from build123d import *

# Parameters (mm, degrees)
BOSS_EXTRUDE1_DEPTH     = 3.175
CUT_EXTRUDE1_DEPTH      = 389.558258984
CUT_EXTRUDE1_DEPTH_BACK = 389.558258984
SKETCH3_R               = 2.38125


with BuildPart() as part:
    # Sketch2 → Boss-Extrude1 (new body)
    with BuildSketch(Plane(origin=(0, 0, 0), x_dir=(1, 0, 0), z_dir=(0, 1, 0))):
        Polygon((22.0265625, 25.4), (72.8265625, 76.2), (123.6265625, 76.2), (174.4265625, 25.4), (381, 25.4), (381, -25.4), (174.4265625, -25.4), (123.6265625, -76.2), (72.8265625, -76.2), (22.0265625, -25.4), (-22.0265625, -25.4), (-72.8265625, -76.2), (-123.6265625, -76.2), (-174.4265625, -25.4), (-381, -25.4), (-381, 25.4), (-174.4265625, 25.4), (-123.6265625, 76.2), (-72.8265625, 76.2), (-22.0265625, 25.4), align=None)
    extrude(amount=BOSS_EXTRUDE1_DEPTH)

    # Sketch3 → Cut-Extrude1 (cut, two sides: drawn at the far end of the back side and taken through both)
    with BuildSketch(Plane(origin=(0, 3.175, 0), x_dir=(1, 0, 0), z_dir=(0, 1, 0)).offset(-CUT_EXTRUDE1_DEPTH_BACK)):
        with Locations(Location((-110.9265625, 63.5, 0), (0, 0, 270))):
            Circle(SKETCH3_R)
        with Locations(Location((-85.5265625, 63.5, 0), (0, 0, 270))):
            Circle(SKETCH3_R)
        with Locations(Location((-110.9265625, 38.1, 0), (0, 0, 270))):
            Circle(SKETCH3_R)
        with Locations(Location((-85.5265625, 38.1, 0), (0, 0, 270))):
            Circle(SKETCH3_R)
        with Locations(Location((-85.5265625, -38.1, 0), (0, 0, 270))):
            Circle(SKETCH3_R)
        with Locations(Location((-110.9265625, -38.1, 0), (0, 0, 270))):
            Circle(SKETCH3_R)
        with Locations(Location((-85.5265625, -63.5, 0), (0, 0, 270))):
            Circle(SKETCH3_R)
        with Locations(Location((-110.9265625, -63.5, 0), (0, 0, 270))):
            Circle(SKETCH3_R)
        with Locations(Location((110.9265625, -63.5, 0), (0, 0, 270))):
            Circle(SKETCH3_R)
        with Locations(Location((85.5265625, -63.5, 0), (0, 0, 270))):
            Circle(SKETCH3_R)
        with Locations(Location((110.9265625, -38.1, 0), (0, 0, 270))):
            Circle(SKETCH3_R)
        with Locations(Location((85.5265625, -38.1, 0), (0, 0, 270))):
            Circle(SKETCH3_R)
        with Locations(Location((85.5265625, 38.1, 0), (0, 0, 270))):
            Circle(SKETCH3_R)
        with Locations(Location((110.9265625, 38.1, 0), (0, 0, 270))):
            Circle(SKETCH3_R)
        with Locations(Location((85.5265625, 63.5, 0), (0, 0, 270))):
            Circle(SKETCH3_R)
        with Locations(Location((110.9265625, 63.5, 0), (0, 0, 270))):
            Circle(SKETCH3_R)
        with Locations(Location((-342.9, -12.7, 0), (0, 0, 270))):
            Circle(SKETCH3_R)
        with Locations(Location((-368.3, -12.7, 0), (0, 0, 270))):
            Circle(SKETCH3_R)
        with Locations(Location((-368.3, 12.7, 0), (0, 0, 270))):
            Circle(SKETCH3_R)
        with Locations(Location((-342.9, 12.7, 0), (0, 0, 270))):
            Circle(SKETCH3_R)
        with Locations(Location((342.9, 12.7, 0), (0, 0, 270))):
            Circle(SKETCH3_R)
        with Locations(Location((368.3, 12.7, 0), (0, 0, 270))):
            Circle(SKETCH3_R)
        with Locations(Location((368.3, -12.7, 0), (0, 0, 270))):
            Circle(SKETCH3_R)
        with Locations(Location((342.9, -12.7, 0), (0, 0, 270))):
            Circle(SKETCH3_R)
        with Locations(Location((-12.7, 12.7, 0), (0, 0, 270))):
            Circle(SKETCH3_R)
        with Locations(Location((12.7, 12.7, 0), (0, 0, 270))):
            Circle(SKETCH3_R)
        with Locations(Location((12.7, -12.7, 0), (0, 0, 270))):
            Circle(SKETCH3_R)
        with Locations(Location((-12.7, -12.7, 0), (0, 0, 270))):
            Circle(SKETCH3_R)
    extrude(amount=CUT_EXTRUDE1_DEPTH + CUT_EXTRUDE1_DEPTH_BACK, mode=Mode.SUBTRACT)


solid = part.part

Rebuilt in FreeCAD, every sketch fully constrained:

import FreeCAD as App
import Part
import Sketcher
from FreeCAD import Vector
Q = App.Units.Quantity

doc = App.newDocument("Part")
body = doc.addObject("PartDesign::Body", "Body")

sketch1 = doc.addObject("Sketcher::SketchObject", "Sketch")
body.addObject(sketch1)
sketch1.AttachmentSupport = (doc.XZ_Plane, [""])
sketch1.MapMode = "FlatFace"
sketch1.addGeometry(Part.LineSegment(Vector(72.826562, -76.2, 0), Vector(22.026563, -25.4, 0)), False)
sketch1.addGeometry(Part.LineSegment(Vector(22.026563, -25.4, 0), Vector(-22.026563, -25.4, 0)), False)
sketch1.addGeometry(Part.LineSegment(Vector(-22.026563, -25.4, 0), Vector(-72.826562, -76.2, 0)), False)
sketch1.addGeometry(Part.LineSegment(Vector(-72.826562, -76.2, 0), Vector(-123.626563, -76.2, 0)), False)
sketch1.addGeometry(Part.LineSegment(Vector(-123.626563, -76.2, 0), Vector(-174.426562, -25.4, 0)), False)
sketch1.addGeometry(Part.LineSegment(Vector(-174.426562, -25.4, 0), Vector(-381, -25.4, 0)), False)
sketch1.addGeometry(Part.LineSegment(Vector(-381, -25.4, 0), Vector(-381, 25.4, 0)), False)
sketch1.addGeometry(Part.LineSegment(Vector(-381, 25.4, 0), Vector(-174.426562, 25.4, 0)), False)
sketch1.addGeometry(Part.LineSegment(Vector(-174.426562, 25.4, 0), Vector(-123.626563, 76.2, 0)), False)
sketch1.addGeometry(Part.LineSegment(Vector(-123.626563, 76.2, 0), Vector(-72.826562, 76.2, 0)), False)
sketch1.addGeometry(Part.LineSegment(Vector(-72.826562, 76.2, 0), Vector(-22.026563, 25.4, 0)), False)
sketch1.addGeometry(Part.LineSegment(Vector(-22.026563, 25.4, 0), Vector(22.026563, 25.4, 0)), False)
sketch1.addGeometry(Part.LineSegment(Vector(22.026563, 25.4, 0), Vector(72.826562, 76.2, 0)), False)
sketch1.addGeometry(Part.LineSegment(Vector(72.826562, 76.2, 0), Vector(123.626563, 76.2, 0)), False)
sketch1.addGeometry(Part.LineSegment(Vector(123.626563, 76.2, 0), Vector(174.426562, 25.4, 0)), False)
sketch1.addGeometry(Part.LineSegment(Vector(174.426562, 25.4, 0), Vector(381, 25.4, 0)), False)
sketch1.addGeometry(Part.LineSegment(Vector(381, 25.4, 0), Vector(381, -25.4, 0)), False)
sketch1.addGeometry(Part.LineSegment(Vector(381, -25.4, 0), Vector(174.426562, -25.4, 0)), False)
sketch1.addGeometry(Part.LineSegment(Vector(174.426562, -25.4, 0), Vector(123.626563, -76.2, 0)), False)
sketch1.addGeometry(Part.LineSegment(Vector(123.626563, -76.2, 0), Vector(72.826562, -76.2, 0)), False)
sketch1.addConstraint(Sketcher.Constraint("Coincident", 0, 2, 1, 1))
sketch1.addConstraint(Sketcher.Constraint("Coincident", 1, 2, 2, 1))
sketch1.addConstraint(Sketcher.Constraint("Coincident", 2, 2, 3, 1))
sketch1.addConstraint(Sketcher.Constraint("Coincident", 3, 2, 4, 1))
sketch1.addConstraint(Sketcher.Constraint("Coincident", 4, 2, 5, 1))
sketch1.addConstraint(Sketcher.Constraint("Coincident", 5, 2, 6, 1))
sketch1.addConstraint(Sketcher.Constraint("Coincident", 6, 2, 7, 1))
sketch1.addConstraint(Sketcher.Constraint("Coincident", 7, 2, 8, 1))
sketch1.addConstraint(Sketcher.Constraint("Coincident", 8, 2, 9, 1))
sketch1.addConstraint(Sketcher.Constraint("Coincident", 9, 2, 10, 1))
sketch1.addConstraint(Sketcher.Constraint("Coincident", 10, 2, 11, 1))
sketch1.addConstraint(Sketcher.Constraint("Coincident", 11, 2, 12, 1))
sketch1.addConstraint(Sketcher.Constraint("Coincident", 12, 2, 13, 1))
sketch1.addConstraint(Sketcher.Constraint("Coincident", 13, 2, 14, 1))
sketch1.addConstraint(Sketcher.Constraint("Coincident", 14, 2, 15, 1))
sketch1.addConstraint(Sketcher.Constraint("Coincident", 15, 2, 16, 1))
sketch1.addConstraint(Sketcher.Constraint("Coincident", 16, 2, 17, 1))
sketch1.addConstraint(Sketcher.Constraint("Coincident", 17, 2, 18, 1))
sketch1.addConstraint(Sketcher.Constraint("Coincident", 18, 2, 19, 1))
sketch1.addConstraint(Sketcher.Constraint("Coincident", 19, 2, 0, 1))
sketch1.addConstraint(Sketcher.Constraint("Horizontal", 1))
sketch1.addConstraint(Sketcher.Constraint("Horizontal", 3))
sketch1.addConstraint(Sketcher.Constraint("Horizontal", 5))
sketch1.addConstraint(Sketcher.Constraint("Vertical", 6))
sketch1.addConstraint(Sketcher.Constraint("Horizontal", 7))
sketch1.addConstraint(Sketcher.Constraint("Horizontal", 9))
sketch1.addConstraint(Sketcher.Constraint("Horizontal", 11))
sketch1.addConstraint(Sketcher.Constraint("Horizontal", 13))
sketch1.addConstraint(Sketcher.Constraint("Horizontal", 15))
sketch1.addConstraint(Sketcher.Constraint("Vertical", 16))
sketch1.addConstraint(Sketcher.Constraint("Horizontal", 17))
sketch1.addConstraint(Sketcher.Constraint("Horizontal", 19))
sketch1.addConstraint(Sketcher.Constraint("Symmetric", 0, 2, 10, 2, -1, 1))
sketch1.addConstraint(Sketcher.Constraint("Symmetric", 2, 2, 12, 2, -1, 1))
sketch1.addConstraint(Sketcher.Constraint("Symmetric", 4, 2, 14, 2, -1, 1))
sketch1.addConstraint(Sketcher.Constraint("Symmetric", 6, 2, 16, 2, -1, 1))
sketch1.addConstraint(Sketcher.Constraint("Symmetric", 8, 2, 18, 2, -1, 1))
sketch1.addConstraint(Sketcher.Constraint("Symmetric", 9, 2, 12, 2, -2))
sketch1.addConstraint(Sketcher.Constraint("Symmetric", 7, 2, 14, 2, -2))
sketch1.addConstraint(Sketcher.Constraint("Perpendicular", 0, 2))
sketch1.addConstraint(Sketcher.Constraint("Perpendicular", 2, 4))
sketch1.addConstraint(Sketcher.Constraint("Perpendicular", 4, 8))
sketch1.addConstraint(Sketcher.Constraint("Perpendicular", 8, 10))
sketch1.addConstraint(Sketcher.Constraint("Perpendicular", 10, 12))
sketch1.addConstraint(Sketcher.Constraint("Perpendicular", 12, 14))
sketch1.addConstraint(Sketcher.Constraint("Perpendicular", 14, 18))
sketch1.addConstraint(Sketcher.Constraint("Horizontal", 1, 2, 4, 2))
sketch1.addConstraint(Sketcher.Constraint("Vertical", 3, 2, 8, 2))
sketch1.addConstraint(Sketcher.Constraint("Equal", 19, 6))
sketch1.addConstraint(Sketcher.Constraint("DistanceX", 3, 2, 3, 1, Q("2 in")))
sketch1.addConstraint(Sketcher.Constraint("DistanceY", 2, 2, -1, 1, Q("3 in")))
sketch1.addConstraint(Sketcher.Constraint("DistanceX", 5, 2, -1, 1, Q("15 in")))
sketch1.addConstraint(Sketcher.Constraint("DistanceX", 1, 2, 1, 1, Q("1.734375 in")))
pad1 = doc.addObject("PartDesign::Pad", "Pad")
body.addObject(pad1)
pad1.Profile = sketch1
pad1.Length = Q("0.125 in")
pad1.Reversed = True

sketch2 = doc.addObject("Sketcher::SketchObject", "Sketch001")
body.addObject(sketch2)
sketch2.AttachmentSupport = (doc.XZ_Plane, [""])
sketch2.MapMode = "FlatFace"
sketch2.AttachmentOffset = App.Placement(Vector(0, 0, -0.125 * 25.4), App.Rotation())
sketch2.addGeometry(Part.Circle(Vector(-110.926563, -63.5, 0), Vector(0, 0, 1), 2.38125), False)
sketch2.addGeometry(Part.Circle(Vector(-85.526562, -63.5, 0), Vector(0, 0, 1), 2.38125), False)
sketch2.addGeometry(Part.Circle(Vector(-110.926563, -38.1, 0), Vector(0, 0, 1), 2.38125), False)
sketch2.addGeometry(Part.Circle(Vector(-85.526562, -38.1, 0), Vector(0, 0, 1), 2.38125), False)
sketch2.addGeometry(Part.Circle(Vector(-85.526562, 38.1, 0), Vector(0, 0, 1), 2.38125), False)
sketch2.addGeometry(Part.Circle(Vector(-110.926563, 38.1, 0), Vector(0, 0, 1), 2.38125), False)
sketch2.addGeometry(Part.Circle(Vector(-85.526562, 63.5, 0), Vector(0, 0, 1), 2.38125), False)
sketch2.addGeometry(Part.Circle(Vector(-110.926563, 63.5, 0), Vector(0, 0, 1), 2.38125), False)
sketch2.addGeometry(Part.Circle(Vector(110.926563, 63.5, 0), Vector(0, 0, 1), 2.38125), False)
sketch2.addGeometry(Part.Circle(Vector(85.526562, 63.5, 0), Vector(0, 0, 1), 2.38125), False)
sketch2.addGeometry(Part.Circle(Vector(110.926563, 38.1, 0), Vector(0, 0, 1), 2.38125), False)
sketch2.addGeometry(Part.Circle(Vector(85.526562, 38.1, 0), Vector(0, 0, 1), 2.38125), False)
sketch2.addGeometry(Part.Circle(Vector(85.526562, -38.1, 0), Vector(0, 0, 1), 2.38125), False)
sketch2.addGeometry(Part.Circle(Vector(110.926563, -38.1, 0), Vector(0, 0, 1), 2.38125), False)
sketch2.addGeometry(Part.Circle(Vector(85.526562, -63.5, 0), Vector(0, 0, 1), 2.38125), False)
sketch2.addGeometry(Part.Circle(Vector(110.926563, -63.5, 0), Vector(0, 0, 1), 2.38125), False)
sketch2.addGeometry(Part.Circle(Vector(-342.9, 12.7, 0), Vector(0, 0, 1), 2.38125), False)
sketch2.addGeometry(Part.Circle(Vector(-368.3, 12.7, 0), Vector(0, 0, 1), 2.38125), False)
sketch2.addGeometry(Part.Circle(Vector(-368.3, -12.7, 0), Vector(0, 0, 1), 2.38125), False)
sketch2.addGeometry(Part.Circle(Vector(-342.9, -12.7, 0), Vector(0, 0, 1), 2.38125), False)
sketch2.addGeometry(Part.Circle(Vector(342.9, -12.7, 0), Vector(0, 0, 1), 2.38125), False)
sketch2.addGeometry(Part.Circle(Vector(368.3, -12.7, 0), Vector(0, 0, 1), 2.38125), False)
sketch2.addGeometry(Part.Circle(Vector(368.3, 12.7, 0), Vector(0, 0, 1), 2.38125), False)
sketch2.addGeometry(Part.Circle(Vector(342.9, 12.7, 0), Vector(0, 0, 1), 2.38125), False)
sketch2.addGeometry(Part.Circle(Vector(-12.7, -12.7, 0), Vector(0, 0, 1), 2.38125), False)
sketch2.addGeometry(Part.Circle(Vector(12.7, -12.7, 0), Vector(0, 0, 1), 2.38125), False)
sketch2.addGeometry(Part.Circle(Vector(12.7, 12.7, 0), Vector(0, 0, 1), 2.38125), False)
sketch2.addGeometry(Part.Circle(Vector(-12.7, 12.7, 0), Vector(0, 0, 1), 2.38125), False)
sketch2.addConstraint(Sketcher.Constraint("Equal", 0, 1))
sketch2.addConstraint(Sketcher.Constraint("Equal", 1, 2))
sketch2.addConstraint(Sketcher.Constraint("Equal", 2, 3))
sketch2.addConstraint(Sketcher.Constraint("Equal", 3, 4))
sketch2.addConstraint(Sketcher.Constraint("Equal", 4, 5))
sketch2.addConstraint(Sketcher.Constraint("Equal", 5, 6))
sketch2.addConstraint(Sketcher.Constraint("Equal", 6, 7))
sketch2.addConstraint(Sketcher.Constraint("Equal", 7, 8))
sketch2.addConstraint(Sketcher.Constraint("Equal", 8, 9))
sketch2.addConstraint(Sketcher.Constraint("Equal", 9, 10))
sketch2.addConstraint(Sketcher.Constraint("Equal", 10, 11))
sketch2.addConstraint(Sketcher.Constraint("Equal", 11, 12))
sketch2.addConstraint(Sketcher.Constraint("Equal", 12, 13))
sketch2.addConstraint(Sketcher.Constraint("Equal", 13, 14))
sketch2.addConstraint(Sketcher.Constraint("Equal", 14, 15))
sketch2.addConstraint(Sketcher.Constraint("Equal", 15, 16))
sketch2.addConstraint(Sketcher.Constraint("Equal", 16, 17))
sketch2.addConstraint(Sketcher.Constraint("Equal", 17, 18))
sketch2.addConstraint(Sketcher.Constraint("Equal", 18, 19))
sketch2.addConstraint(Sketcher.Constraint("Equal", 19, 20))
sketch2.addConstraint(Sketcher.Constraint("Equal", 20, 21))
sketch2.addConstraint(Sketcher.Constraint("Equal", 21, 22))
sketch2.addConstraint(Sketcher.Constraint("Equal", 22, 23))
sketch2.addConstraint(Sketcher.Constraint("Equal", 23, 24))
sketch2.addConstraint(Sketcher.Constraint("Equal", 24, 25))
sketch2.addConstraint(Sketcher.Constraint("Equal", 25, 26))
sketch2.addConstraint(Sketcher.Constraint("Equal", 26, 27))
sketch2.addConstraint(Sketcher.Constraint("Symmetric", 0, 3, 8, 3, -1, 1))
sketch2.addConstraint(Sketcher.Constraint("Symmetric", 1, 3, 9, 3, -1, 1))
sketch2.addConstraint(Sketcher.Constraint("Symmetric", 2, 3, 10, 3, -1, 1))
sketch2.addConstraint(Sketcher.Constraint("Symmetric", 3, 3, 11, 3, -1, 1))
sketch2.addConstraint(Sketcher.Constraint("Symmetric", 4, 3, 12, 3, -1, 1))
sketch2.addConstraint(Sketcher.Constraint("Symmetric", 5, 3, 13, 3, -1, 1))
sketch2.addConstraint(Sketcher.Constraint("Symmetric", 6, 3, 14, 3, -1, 1))
sketch2.addConstraint(Sketcher.Constraint("Symmetric", 7, 3, 15, 3, -1, 1))
sketch2.addConstraint(Sketcher.Constraint("Symmetric", 16, 3, 20, 3, -1, 1))
sketch2.addConstraint(Sketcher.Constraint("Symmetric", 17, 3, 21, 3, -1, 1))
sketch2.addConstraint(Sketcher.Constraint("Symmetric", 18, 3, 22, 3, -1, 1))
sketch2.addConstraint(Sketcher.Constraint("Symmetric", 19, 3, 23, 3, -1, 1))
sketch2.addConstraint(Sketcher.Constraint("Symmetric", 24, 3, 26, 3, -1, 1))
sketch2.addConstraint(Sketcher.Constraint("Symmetric", 25, 3, 27, 3, -1, 1))
sketch2.addConstraint(Sketcher.Constraint("Symmetric", 7, 3, 8, 3, -2))
sketch2.addConstraint(Sketcher.Constraint("Symmetric", 6, 3, 9, 3, -2))
sketch2.addConstraint(Sketcher.Constraint("Symmetric", 5, 3, 10, 3, -2))
sketch2.addConstraint(Sketcher.Constraint("Symmetric", 4, 3, 11, 3, -2))
sketch2.addConstraint(Sketcher.Constraint("Symmetric", 19, 3, 20, 3, -2))
sketch2.addConstraint(Sketcher.Constraint("Symmetric", 18, 3, 21, 3, -2))
sketch2.addConstraint(Sketcher.Constraint("Symmetric", 24, 3, 25, 3, -2))
sketch2.addConstraint(Sketcher.Constraint("Horizontal", 0, 3, 1, 3))
sketch2.addConstraint(Sketcher.Constraint("Horizontal", 2, 3, 3, 3))
sketch2.addConstraint(Sketcher.Constraint("Horizontal", 16, 3, 17, 3))
sketch2.addConstraint(Sketcher.Constraint("Horizontal", 21, 3, 24, 3))
sketch2.addConstraint(Sketcher.Constraint("Vertical", 0, 3, 2, 3))
sketch2.addConstraint(Sketcher.Constraint("Vertical", 1, 3, 3, 3))
sketch2.addConstraint(Sketcher.Constraint("Diameter", 0, Q("0.1875 in")))
sketch2.addConstraint(Sketcher.Constraint("DistanceX", 0, 3, 1, 3, Q("1 in")))
sketch2.addConstraint(Sketcher.Constraint("DistanceY", 0, 3, 2, 3, Q("1 in")))
sketch2.addConstraint(Sketcher.Constraint("DistanceY", 3, 3, 4, 3, Q("3 in")))
sketch2.addConstraint(Sketcher.Constraint("DistanceY", 16, 3, 5, 3, Q("1 in")))
sketch2.addConstraint(Sketcher.Constraint("DistanceX", 17, 3, 16, 3, Q("1 in")))
sketch2.addConstraint(Sketcher.Constraint("DistanceX", 24, 3, 25, 3, Q("1 in")))
sketch2.addConstraint(Sketcher.Constraint("DistanceX", 16, 3, -1, 1, Q("13.5 in")))
sketch2.addConstraint(Sketcher.Constraint("DistanceX", 6, 3, 8, 3, Q("7.734375 in")))
pocket1 = doc.addObject("PartDesign::Pocket", "Pocket")
body.addObject(pocket1)
pocket1.Profile = sketch2
pocket1.Type = "ThroughAll"
pocket1.Midplane = True

doc.recompute()
